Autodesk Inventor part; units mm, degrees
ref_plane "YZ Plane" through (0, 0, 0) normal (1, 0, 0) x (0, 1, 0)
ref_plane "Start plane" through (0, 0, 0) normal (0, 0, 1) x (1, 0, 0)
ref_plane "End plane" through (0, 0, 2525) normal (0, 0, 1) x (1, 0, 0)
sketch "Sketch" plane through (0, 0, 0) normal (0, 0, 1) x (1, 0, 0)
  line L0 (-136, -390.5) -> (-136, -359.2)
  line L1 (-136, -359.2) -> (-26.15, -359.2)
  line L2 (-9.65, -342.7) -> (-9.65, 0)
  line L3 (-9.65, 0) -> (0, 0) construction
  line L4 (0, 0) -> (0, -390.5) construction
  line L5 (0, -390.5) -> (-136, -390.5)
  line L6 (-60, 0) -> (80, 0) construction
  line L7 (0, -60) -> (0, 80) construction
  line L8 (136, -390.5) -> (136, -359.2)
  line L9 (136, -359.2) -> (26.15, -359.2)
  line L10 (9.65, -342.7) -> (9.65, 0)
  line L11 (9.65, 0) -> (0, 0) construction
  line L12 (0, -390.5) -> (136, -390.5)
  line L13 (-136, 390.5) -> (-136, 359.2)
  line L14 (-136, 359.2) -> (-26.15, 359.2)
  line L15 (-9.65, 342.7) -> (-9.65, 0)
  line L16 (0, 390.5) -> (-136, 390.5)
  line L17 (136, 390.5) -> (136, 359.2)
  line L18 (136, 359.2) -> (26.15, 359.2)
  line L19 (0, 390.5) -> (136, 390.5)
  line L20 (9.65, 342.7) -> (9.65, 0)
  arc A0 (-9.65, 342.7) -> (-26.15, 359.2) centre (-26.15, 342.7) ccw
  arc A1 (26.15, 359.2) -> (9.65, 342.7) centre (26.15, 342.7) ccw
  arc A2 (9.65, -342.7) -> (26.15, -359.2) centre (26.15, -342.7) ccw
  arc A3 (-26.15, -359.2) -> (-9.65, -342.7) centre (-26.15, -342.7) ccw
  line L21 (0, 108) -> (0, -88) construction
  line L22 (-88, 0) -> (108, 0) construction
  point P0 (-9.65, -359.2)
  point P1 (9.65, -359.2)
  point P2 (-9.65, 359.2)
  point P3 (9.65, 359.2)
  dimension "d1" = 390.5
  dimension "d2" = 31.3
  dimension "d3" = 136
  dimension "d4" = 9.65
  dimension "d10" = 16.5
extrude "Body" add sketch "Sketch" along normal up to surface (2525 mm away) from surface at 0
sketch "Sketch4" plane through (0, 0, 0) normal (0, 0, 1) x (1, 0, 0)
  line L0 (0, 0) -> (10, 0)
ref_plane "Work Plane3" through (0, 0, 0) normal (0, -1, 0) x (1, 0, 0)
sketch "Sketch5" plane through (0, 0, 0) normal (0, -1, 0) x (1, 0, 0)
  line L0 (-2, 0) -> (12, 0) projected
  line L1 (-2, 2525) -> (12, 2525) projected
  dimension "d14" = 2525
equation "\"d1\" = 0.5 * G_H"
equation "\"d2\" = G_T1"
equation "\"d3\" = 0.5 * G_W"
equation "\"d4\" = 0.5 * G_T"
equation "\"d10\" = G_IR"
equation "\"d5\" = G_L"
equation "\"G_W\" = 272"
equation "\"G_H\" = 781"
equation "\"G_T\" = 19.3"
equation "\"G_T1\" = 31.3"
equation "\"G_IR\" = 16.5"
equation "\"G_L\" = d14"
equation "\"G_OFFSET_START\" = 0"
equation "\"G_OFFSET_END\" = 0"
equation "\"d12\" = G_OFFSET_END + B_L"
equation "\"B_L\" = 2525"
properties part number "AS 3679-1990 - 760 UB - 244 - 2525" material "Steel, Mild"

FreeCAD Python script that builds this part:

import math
import FreeCAD as App
import Part
import Sketcher
from FreeCAD import Vector

doc = App.newDocument("Part")
params = doc.addObject("Spreadsheet::Sheet", "Params")
for row, (alias, value) in enumerate([
    ("sketch1_radius", "16.5 mm"),
    ("sketch1_height", "31.3 mm"),
    ("pad1_length", "2525 mm"),
], start=1):
    params.set(f"A{row}", alias)
    params.set(f"B{row}", "=" + value)
    params.setAlias(f"B{row}", alias)

body = doc.addObject("PartDesign::Body", "Body")

# Sketch on XY plane
sketch1 = doc.addObject("Sketcher::SketchObject", "Sketch")
body.addObject(sketch1)
sketch1.AttachmentSupport = (doc.XY_Plane, [""])
sketch1.MapMode = "FlatFace"
sketch1.addGeometry([
    Part.LineSegment(Vector(-136, -359, 0), Vector(-136, -390, 0)),  # 0
    Part.LineSegment(Vector(-136, -390, 0), Vector(136, -390, 0)),  # 1
    Part.LineSegment(Vector(136, -390, 0), Vector(136, -359, 0)),  # 2
    Part.LineSegment(Vector(136, -359, 0), Vector(26, -359, 0)),  # 3
    Part.ArcOfCircle(Part.Circle(Vector(26, -343, 0), Vector(0, 0, 1), 16), math.radians(180), math.radians(270)),  # 4
    Part.LineSegment(Vector(10, -343, 0), Vector(10, 343, 0)),  # 5
    Part.ArcOfCircle(Part.Circle(Vector(26, 343, 0), Vector(0, 0, 1), 16), math.radians(90), math.radians(180)),  # 6
    Part.LineSegment(Vector(26, 359, 0), Vector(136, 359, 0)),  # 7
    Part.LineSegment(Vector(136, 359, 0), Vector(136, 390, 0)),  # 8
    Part.LineSegment(Vector(136, 390, 0), Vector(-136, 390, 0)),  # 9
    Part.LineSegment(Vector(-136, 390, 0), Vector(-136, 359, 0)),  # 10
    Part.LineSegment(Vector(-136, 359, 0), Vector(-26, 359, 0)),  # 11
    Part.ArcOfCircle(Part.Circle(Vector(-26, 343, 0), Vector(0, 0, 1), 16), math.radians(0), math.radians(90)),  # 12
    Part.LineSegment(Vector(-10, 343, 0), Vector(-10, -343, 0)),  # 13
    Part.ArcOfCircle(Part.Circle(Vector(-26, -343, 0), Vector(0, 0, 1), 16), math.radians(-90), math.radians(0)),  # 14
    Part.LineSegment(Vector(-26, -359, 0), Vector(-136, -359, 0)),  # 15
], False)
sketch1.addConstraint([
    Sketcher.Constraint("Coincident", 0, 2, 1, 1),
    Sketcher.Constraint("Coincident", 1, 2, 2, 1),
    Sketcher.Constraint("Coincident", 2, 2, 3, 1),
    Sketcher.Constraint("Tangent", 3, 2, 4, 2),
    Sketcher.Constraint("Tangent", 4, 1, 5, 1),
    Sketcher.Constraint("Tangent", 5, 2, 6, 2),
    Sketcher.Constraint("Tangent", 6, 1, 7, 1),
    Sketcher.Constraint("Coincident", 7, 2, 8, 1),
    Sketcher.Constraint("Coincident", 8, 2, 9, 1),
    Sketcher.Constraint("Coincident", 9, 2, 10, 1),
    Sketcher.Constraint("Coincident", 10, 2, 11, 1),
    Sketcher.Constraint("Tangent", 11, 2, 12, 2),
    Sketcher.Constraint("Tangent", 12, 1, 13, 1),
    Sketcher.Constraint("Tangent", 13, 2, 14, 2),
    Sketcher.Constraint("Tangent", 14, 1, 15, 1),
    Sketcher.Constraint("Coincident", 15, 2, 0, 1),
    Sketcher.Constraint("Vertical", 0),
    Sketcher.Constraint("Horizontal", 1),
    Sketcher.Constraint("Vertical", 2),
    Sketcher.Constraint("Horizontal", 3),
    Sketcher.Constraint("Vertical", 5),
    Sketcher.Constraint("Horizontal", 7),
    Sketcher.Constraint("Vertical", 8),
    Sketcher.Constraint("Horizontal", 9),
    Sketcher.Constraint("Vertical", 10),
    Sketcher.Constraint("Horizontal", 11),
    Sketcher.Constraint("Vertical", 13),
    Sketcher.Constraint("Horizontal", 15),
    Sketcher.Constraint("Equal", 4, 6),
    Sketcher.Constraint("Equal", 6, 12),
    Sketcher.Constraint("Equal", 12, 14),
    Sketcher.Constraint("Symmetric", 4, 3, 12, 3, -1, 1),
    Sketcher.Constraint("Symmetric", 0, 2, 8, 2, -1, 1),
    Sketcher.Constraint("Symmetric", 7, 2, 10, 2, -2),
    Sketcher.Constraint("Symmetric", 2, 2, 15, 2, -2),
    Sketcher.Constraint("Radius", 4, 16.5),
    Sketcher.Constraint("DistanceY", 0, 2, 0, 1, 31.3),
    Sketcher.Constraint("DistanceX", 0, 2, -1, 1, 136.0),
    Sketcher.Constraint("DistanceY", 0, 2, -1, 1, 390.5),
    Sketcher.Constraint("DistanceX", -1, 1, 4, 1, 9.65),
])
sketch1.setExpression("Constraints[35]", "Params.sketch1_radius")
sketch1.setExpression("Constraints[36]", "Params.sketch1_height")
pad1 = doc.addObject("PartDesign::Pad", "Pad")
body.addObject(pad1)
pad1.Profile = sketch1
pad1.setExpression("Length", "Params.pad1_length")

doc.recompute()
